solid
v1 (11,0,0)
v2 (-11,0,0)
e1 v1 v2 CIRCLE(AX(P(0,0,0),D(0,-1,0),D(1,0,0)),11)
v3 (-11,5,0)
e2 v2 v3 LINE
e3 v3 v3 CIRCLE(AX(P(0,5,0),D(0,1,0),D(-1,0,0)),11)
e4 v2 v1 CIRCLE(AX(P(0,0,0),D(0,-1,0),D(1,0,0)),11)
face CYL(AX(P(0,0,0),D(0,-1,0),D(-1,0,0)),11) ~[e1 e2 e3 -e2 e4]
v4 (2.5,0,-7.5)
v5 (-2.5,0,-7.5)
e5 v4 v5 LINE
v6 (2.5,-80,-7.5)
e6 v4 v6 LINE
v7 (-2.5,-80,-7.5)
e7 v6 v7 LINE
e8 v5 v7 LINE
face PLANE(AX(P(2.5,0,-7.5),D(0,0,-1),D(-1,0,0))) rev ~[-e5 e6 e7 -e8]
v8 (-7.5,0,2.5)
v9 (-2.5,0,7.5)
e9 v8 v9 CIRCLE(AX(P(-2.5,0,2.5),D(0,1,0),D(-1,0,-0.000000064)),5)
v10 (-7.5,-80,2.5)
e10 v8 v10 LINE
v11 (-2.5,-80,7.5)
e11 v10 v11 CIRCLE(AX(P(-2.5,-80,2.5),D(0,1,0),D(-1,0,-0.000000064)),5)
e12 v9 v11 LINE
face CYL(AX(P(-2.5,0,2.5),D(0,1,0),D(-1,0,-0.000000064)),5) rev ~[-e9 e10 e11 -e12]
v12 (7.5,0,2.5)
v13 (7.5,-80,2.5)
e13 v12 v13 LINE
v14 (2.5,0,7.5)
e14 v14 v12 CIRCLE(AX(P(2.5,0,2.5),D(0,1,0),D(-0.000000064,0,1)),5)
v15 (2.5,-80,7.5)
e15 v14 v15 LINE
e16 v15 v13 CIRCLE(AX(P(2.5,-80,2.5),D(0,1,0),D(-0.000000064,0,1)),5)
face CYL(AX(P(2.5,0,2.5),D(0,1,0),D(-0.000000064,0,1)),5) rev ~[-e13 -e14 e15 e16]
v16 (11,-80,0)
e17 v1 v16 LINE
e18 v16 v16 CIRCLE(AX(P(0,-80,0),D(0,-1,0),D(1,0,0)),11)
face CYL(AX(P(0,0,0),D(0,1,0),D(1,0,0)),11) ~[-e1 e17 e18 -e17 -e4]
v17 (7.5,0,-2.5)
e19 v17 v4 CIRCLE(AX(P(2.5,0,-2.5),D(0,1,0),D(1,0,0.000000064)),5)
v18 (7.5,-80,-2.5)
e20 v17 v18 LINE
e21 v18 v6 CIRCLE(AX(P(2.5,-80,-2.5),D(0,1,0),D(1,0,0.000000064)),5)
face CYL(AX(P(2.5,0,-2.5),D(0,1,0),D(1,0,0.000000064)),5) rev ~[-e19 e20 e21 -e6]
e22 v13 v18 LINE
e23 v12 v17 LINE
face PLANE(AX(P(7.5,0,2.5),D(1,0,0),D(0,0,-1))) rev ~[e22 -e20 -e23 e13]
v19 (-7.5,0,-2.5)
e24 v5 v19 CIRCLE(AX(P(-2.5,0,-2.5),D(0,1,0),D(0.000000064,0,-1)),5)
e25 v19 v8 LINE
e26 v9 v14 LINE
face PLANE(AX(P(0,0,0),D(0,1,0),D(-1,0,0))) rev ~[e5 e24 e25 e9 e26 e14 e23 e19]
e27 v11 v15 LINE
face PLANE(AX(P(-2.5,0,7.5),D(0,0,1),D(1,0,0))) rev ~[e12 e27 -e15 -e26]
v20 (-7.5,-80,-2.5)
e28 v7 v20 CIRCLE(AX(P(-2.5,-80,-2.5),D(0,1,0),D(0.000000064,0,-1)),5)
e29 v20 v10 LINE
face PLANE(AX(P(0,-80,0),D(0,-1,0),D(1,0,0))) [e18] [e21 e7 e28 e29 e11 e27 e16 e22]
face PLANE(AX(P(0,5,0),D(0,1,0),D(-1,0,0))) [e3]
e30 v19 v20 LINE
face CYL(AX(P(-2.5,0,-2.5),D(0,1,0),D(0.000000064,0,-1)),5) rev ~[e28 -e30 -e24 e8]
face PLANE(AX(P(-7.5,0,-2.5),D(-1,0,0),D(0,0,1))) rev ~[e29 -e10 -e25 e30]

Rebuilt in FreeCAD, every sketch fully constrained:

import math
import FreeCAD as App
import Part
import Sketcher
from FreeCAD import Vector
Q = App.Units.Quantity

doc = App.newDocument("Part")
params = doc.addObject("Spreadsheet::Sheet", "Params")
for row, (alias, value) in enumerate([
    ("sketch1_diameter", "22 mm"),
    ("sketch1_radius", "5 mm"),
    ("sketch1_width", "5 mm"),
    ("pad1_length", "80 mm"),
    ("sketch2_diameter", "22 mm"),
    ("pad2_length", "5 mm"),
], start=1):
    params.set(f"A{row}", alias)
    params.set(f"B{row}", "=" + value)
    params.setAlias(f"B{row}", alias)

body = doc.addObject("PartDesign::Body", "Body")

# Sketch on XZ plane
sketch1 = doc.addObject("Sketcher::SketchObject", "Sketch")
body.addObject(sketch1)
sketch1.AttachmentSupport = (doc.XZ_Plane, [""])
sketch1.MapMode = "FlatFace"
sketch1.addGeometry(Part.Circle(Vector(0, 0, 0), Vector(0, 0, 1), 11), False)
sketch1.addGeometry(Part.ArcOfCircle(Part.Circle(Vector(-2.5, 2.5, 0), Vector(0, 0, 1), 5), math.radians(89.999996), math.radians(180.000004)), False)
sketch1.addGeometry(Part.LineSegment(Vector(-2.5, 7.5, 0), Vector(2.5, 7.5, 0)), False)
sketch1.addGeometry(Part.ArcOfCircle(Part.Circle(Vector(2.5, 2.5, 0), Vector(0, 0, 1), 5), math.radians(-0.000004), math.radians(90.000004)), False)
sketch1.addGeometry(Part.LineSegment(Vector(7.5, 2.5, 0), Vector(7.5, -2.5, 0)), False)
sketch1.addGeometry(Part.ArcOfCircle(Part.Circle(Vector(2.5, -2.5, 0), Vector(0, 0, 1), 5), math.radians(-90.000004), math.radians(0.000004)), False)
sketch1.addGeometry(Part.LineSegment(Vector(2.5, -7.5, 0), Vector(-2.5, -7.5, 0)), False)
sketch1.addGeometry(Part.ArcOfCircle(Part.Circle(Vector(-2.5, -2.5, 0), Vector(0, 0, 1), 5), math.radians(179.999996), math.radians(270.000004)), False)
sketch1.addGeometry(Part.LineSegment(Vector(-7.5, -2.5, 0), Vector(-7.5, 2.5, 0)), False)
sketch1.addConstraint(Sketcher.Constraint("Tangent", 1, 1, 2, 1))
sketch1.addConstraint(Sketcher.Constraint("Tangent", 2, 2, 3, 2))
sketch1.addConstraint(Sketcher.Constraint("Tangent", 3, 1, 4, 1))
sketch1.addConstraint(Sketcher.Constraint("Tangent", 4, 2, 5, 2))
sketch1.addConstraint(Sketcher.Constraint("Tangent", 5, 1, 6, 1))
sketch1.addConstraint(Sketcher.Constraint("Tangent", 6, 2, 7, 2))
sketch1.addConstraint(Sketcher.Constraint("Tangent", 7, 1, 8, 1))
sketch1.addConstraint(Sketcher.Constraint("Tangent", 8, 2, 1, 2))
sketch1.addConstraint(Sketcher.Constraint("Horizontal", 2))
sketch1.addConstraint(Sketcher.Constraint("Vertical", 4))
sketch1.addConstraint(Sketcher.Constraint("Horizontal", 6))
sketch1.addConstraint(Sketcher.Constraint("Vertical", 8))
sketch1.addConstraint(Sketcher.Constraint("Coincident", 0, 3, -1, 1))
sketch1.addConstraint(Sketcher.Constraint("Equal", 1, 3))
sketch1.addConstraint(Sketcher.Constraint("Equal", 3, 5))
sketch1.addConstraint(Sketcher.Constraint("Equal", 5, 7))
sketch1.addConstraint(Sketcher.Constraint("Symmetric", 1, 3, 5, 3, -1, 1))
sketch1.addConstraint(Sketcher.Constraint("Equal", 6, 4))
sketch1.addConstraint(Sketcher.Constraint("Diameter", 0, Q("22 mm")))
sketch1.addConstraint(Sketcher.Constraint("Radius", 1, Q("5 mm")))
sketch1.addConstraint(Sketcher.Constraint("DistanceX", 2, 1, 2, 2, Q("5 mm")))
sketch1.setExpression("Constraints[18]", "Params.sketch1_diameter")
sketch1.setExpression("Constraints[19]", "Params.sketch1_radius")
sketch1.setExpression("Constraints[20]", "Params.sketch1_width")
pad1 = doc.addObject("PartDesign::Pad", "Pad")
body.addObject(pad1)
pad1.Profile = sketch1
pad1.setExpression("Length", "Params.pad1_length")

# Sketch on XZ plane
sketch2 = doc.addObject("Sketcher::SketchObject", "Sketch001")
body.addObject(sketch2)
sketch2.AttachmentSupport = (doc.XZ_Plane, [""])
sketch2.MapMode = "FlatFace"
sketch2.addGeometry(Part.Circle(Vector(0, 0, 0), Vector(0, 0, 1), 11), False)
sketch2.addConstraint(Sketcher.Constraint("Coincident", 0, 3, -1, 1))
sketch2.addConstraint(Sketcher.Constraint("Diameter", 0, Q("22 mm")))
sketch2.setExpression("Constraints[1]", "Params.sketch2_diameter")
pad2 = doc.addObject("PartDesign::Pad", "Pad001")
body.addObject(pad2)
pad2.Profile = sketch2
pad2.setExpression("Length", "Params.pad2_length")
pad2.Reversed = True

doc.recompute()
